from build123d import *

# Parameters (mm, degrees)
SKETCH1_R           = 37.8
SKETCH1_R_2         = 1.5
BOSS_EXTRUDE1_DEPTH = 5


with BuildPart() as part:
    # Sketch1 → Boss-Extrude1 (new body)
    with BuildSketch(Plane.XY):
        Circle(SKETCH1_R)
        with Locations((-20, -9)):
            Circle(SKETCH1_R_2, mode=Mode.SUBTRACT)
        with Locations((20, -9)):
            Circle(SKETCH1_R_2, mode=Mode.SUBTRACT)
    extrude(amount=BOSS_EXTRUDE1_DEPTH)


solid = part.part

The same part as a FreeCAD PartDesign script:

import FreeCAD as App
import Part
import Sketcher
from FreeCAD import Vector
Q = App.Units.Quantity

doc = App.newDocument("Part")
body = doc.addObject("PartDesign::Body", "Body")

sketch1 = body.newObject("Sketcher::SketchObject", "Sketch")
sketch1.AttachmentSupport = (doc.getObject("XY_Plane"), [""])
sketch1.MapMode = "FlatFace"
sketch1.addGeometry([
    Part.Circle(Vector(0, 0, 0), Vector(0, 0, 1), 37.8),
    Part.Circle(Vector(-20, -9, 0), Vector(0, 0, 1), 1.5),
    Part.Circle(Vector(20, -9, 0), Vector(0, 0, 1), 1.5),
], False)
sketch1.addConstraint([
    Sketcher.Constraint("Coincident", 0, 3, -1, 1),
    Sketcher.Constraint("Equal", 1, 2),
    Sketcher.Constraint("Symmetric", 1, 3, 2, 3, -2),
    Sketcher.Constraint("Diameter", 1, Q("3 mm")),
    Sketcher.Constraint("Diameter", 0, Q("75.6 mm")),
    Sketcher.Constraint("DistanceX", 1, 3, -1, 1, Q("20 mm")),
    Sketcher.Constraint("DistanceY", 1, 3, -1, 1, Q("9 mm")),
])
pad1 = body.newObject("PartDesign::Pad", "Pad")
pad1.Profile = sketch1
pad1.Length = 5

doc.recompute()
